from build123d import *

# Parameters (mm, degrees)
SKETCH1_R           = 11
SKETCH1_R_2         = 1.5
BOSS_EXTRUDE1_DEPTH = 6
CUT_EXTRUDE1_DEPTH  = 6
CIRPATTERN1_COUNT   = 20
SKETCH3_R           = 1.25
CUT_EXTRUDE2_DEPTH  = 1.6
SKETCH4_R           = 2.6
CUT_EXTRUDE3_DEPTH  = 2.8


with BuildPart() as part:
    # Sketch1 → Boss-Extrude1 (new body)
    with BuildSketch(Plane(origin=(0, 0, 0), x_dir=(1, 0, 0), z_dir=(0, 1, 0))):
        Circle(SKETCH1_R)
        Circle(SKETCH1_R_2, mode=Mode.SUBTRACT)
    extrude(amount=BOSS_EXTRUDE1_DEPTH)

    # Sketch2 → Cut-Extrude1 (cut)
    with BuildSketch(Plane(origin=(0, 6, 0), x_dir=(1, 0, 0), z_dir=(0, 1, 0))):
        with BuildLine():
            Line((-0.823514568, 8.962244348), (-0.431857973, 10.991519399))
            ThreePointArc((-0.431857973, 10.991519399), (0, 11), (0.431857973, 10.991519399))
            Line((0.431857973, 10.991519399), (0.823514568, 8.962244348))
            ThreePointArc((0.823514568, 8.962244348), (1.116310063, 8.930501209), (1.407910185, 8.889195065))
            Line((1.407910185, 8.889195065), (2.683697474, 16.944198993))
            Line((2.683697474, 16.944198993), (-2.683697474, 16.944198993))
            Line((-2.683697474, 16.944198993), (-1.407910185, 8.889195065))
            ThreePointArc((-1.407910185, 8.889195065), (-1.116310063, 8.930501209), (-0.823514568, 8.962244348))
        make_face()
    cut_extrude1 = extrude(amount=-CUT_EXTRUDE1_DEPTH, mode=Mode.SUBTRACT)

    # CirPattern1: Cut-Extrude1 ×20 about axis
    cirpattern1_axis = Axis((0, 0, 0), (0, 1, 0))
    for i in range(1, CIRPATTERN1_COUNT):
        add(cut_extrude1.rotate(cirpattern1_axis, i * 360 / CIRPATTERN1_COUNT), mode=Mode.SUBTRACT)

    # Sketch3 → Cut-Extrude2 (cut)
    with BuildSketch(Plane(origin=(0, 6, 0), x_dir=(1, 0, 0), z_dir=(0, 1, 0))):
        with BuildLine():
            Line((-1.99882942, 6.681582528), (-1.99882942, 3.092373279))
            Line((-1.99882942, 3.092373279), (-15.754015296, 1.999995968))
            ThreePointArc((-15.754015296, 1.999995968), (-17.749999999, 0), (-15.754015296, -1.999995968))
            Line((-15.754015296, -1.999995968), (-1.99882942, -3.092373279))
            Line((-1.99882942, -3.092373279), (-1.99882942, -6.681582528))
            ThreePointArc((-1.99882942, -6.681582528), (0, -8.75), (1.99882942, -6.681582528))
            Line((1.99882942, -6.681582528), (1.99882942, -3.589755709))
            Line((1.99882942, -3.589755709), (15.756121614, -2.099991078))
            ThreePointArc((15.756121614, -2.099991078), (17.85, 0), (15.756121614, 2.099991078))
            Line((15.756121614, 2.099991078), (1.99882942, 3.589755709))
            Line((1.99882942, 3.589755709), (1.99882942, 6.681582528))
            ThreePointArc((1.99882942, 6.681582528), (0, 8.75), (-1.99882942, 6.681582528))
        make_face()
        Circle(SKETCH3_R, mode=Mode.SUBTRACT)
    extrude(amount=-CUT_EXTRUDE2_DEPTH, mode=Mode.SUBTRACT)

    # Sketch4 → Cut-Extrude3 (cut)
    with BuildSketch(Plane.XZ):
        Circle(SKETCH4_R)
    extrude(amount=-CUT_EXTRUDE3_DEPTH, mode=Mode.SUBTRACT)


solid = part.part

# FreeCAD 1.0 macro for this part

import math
import FreeCAD as App
import Part
import Sketcher

V = App.Vector
Q = App.Units.Quantity

doc = App.newDocument("Part")
body = doc.addObject("PartDesign::Body", "Body")

sketch1 = doc.addObject("Sketcher::SketchObject", "Sketch")
body.addObject(sketch1)
sketch1.AttachmentSupport = (doc.XZ_Plane, [""])
sketch1.MapMode = "FlatFace"
sketch1.addGeometry([
    Part.Circle(V(0, 0, 0), V(0, 0, 1), 11),
    Part.Circle(V(0, 0, 0), V(0, 0, 1), 1.5),
], False)
sketch1.addConstraint([
    Sketcher.Constraint("Coincident", 0, 3, -1, 1),
    Sketcher.Constraint("Coincident", 1, 3, -1, 1),
    Sketcher.Constraint("Diameter", 0, Q("22 mm")),
    Sketcher.Constraint("Diameter", 1, Q("3 mm")),
])
pad1 = doc.addObject("PartDesign::Pad", "Pad")
body.addObject(pad1)
pad1.Profile = sketch1
pad1.Length = 6
pad1.Reversed = True

sketch2 = doc.addObject("Sketcher::SketchObject", "Sketch001")
body.addObject(sketch2)
sketch2.AttachmentSupport = (doc.XZ_Plane, [""])
sketch2.MapMode = "FlatFace"
sketch2.AttachmentOffset = App.Placement(V(0, 0, -6), App.Rotation())
sketch2.addGeometry([
    Part.LineSegment(V(-0.8, -9, 0), V(-0.4, -11, 0)),
    Part.ArcOfCircle(Part.Circle(V(0, 0, 0), V(0, 0, 1), 11), math.radians(-92.25), math.radians(-87.75)),
    Part.LineSegment(V(0.4, -11, 0), V(0.8, -9, 0)),
    Part.ArcOfCircle(Part.Circle(V(0, 0, 0), V(0, 0, 1), 9), math.radians(-84.75), math.radians(-81)),
    Part.LineSegment(V(1.4, -8.9, 0), V(2.7, -16.9, 0)),
    Part.LineSegment(V(2.7, -16.9, 0), V(-2.7, -16.9, 0)),
    Part.LineSegment(V(-2.7, -16.9, 0), V(-1.4, -8.9, 0)),
    Part.ArcOfCircle(Part.Circle(V(0, 0, 0), V(0, 0, 1), 9), math.radians(-99), math.radians(-95.25)),
], False)
sketch2.addConstraint([
    Sketcher.Constraint("Coincident", 0, 2, 1, 1),
    Sketcher.Constraint("Coincident", 1, 2, 2, 1),
    Sketcher.Constraint("Coincident", 2, 2, 3, 1),
    Sketcher.Constraint("Coincident", 3, 2, 4, 1),
    Sketcher.Constraint("Coincident", 4, 2, 5, 1),
    Sketcher.Constraint("Coincident", 5, 2, 6, 1),
    Sketcher.Constraint("Coincident", 6, 2, 7, 1),
    Sketcher.Constraint("Coincident", 7, 2, 0, 1),
    Sketcher.Constraint("Horizontal", 5),
    Sketcher.Constraint("Coincident", 1, 3, -1, 1),
    Sketcher.Constraint("Coincident", 3, 3, -1, 1),
    Sketcher.Constraint("Coincident", 7, 3, -1, 1),
    Sketcher.Constraint("Equal", 3, 7),
    Sketcher.Constraint("Horizontal", 0, 2, 1, 2),
    Sketcher.Constraint("Horizontal", 3, 2, 6, 2),
    Sketcher.Constraint("Horizontal", 2, 2, 7, 2),
    Sketcher.Constraint("Equal", 4, 6),
    Sketcher.Constraint("Radius", 1, Q("11 mm")),
    Sketcher.Constraint("Radius", 3, Q("8.999999 mm")),
    Sketcher.Constraint("Angle", 4, Q("-81 deg")),
    Sketcher.Constraint("DistanceY", 4, 2, -1, 1, Q("16.944199 mm")),
    Sketcher.Constraint("Distance", 4, Q("8.155411 mm")),
    Sketcher.Constraint("DistanceY", 0, 2, -1, 1, Q("10.991519 mm")),
    Sketcher.Constraint("DistanceY", 2, 2, 3, 2, Q("0.073049 mm")),
])
pocket1 = doc.addObject("PartDesign::Pocket", "Pocket")
body.addObject(pocket1)
pocket1.Profile = sketch2
pocket1.Length = 6
pocket1.Reversed = True
doc.recompute()

polarpattern = doc.addObject("PartDesign::PolarPattern", "PolarPattern")
body.addObject(polarpattern)
polarpattern.Originals = [pocket1]
polarpattern.Axis = (doc.Y_Axis, [""])
polarpattern.Angle = 360
polarpattern.Occurrences = 20
body.Tip = polarpattern

sketch3 = doc.addObject("Sketcher::SketchObject", "Sketch002")
body.addObject(sketch3)
sketch3.AttachmentSupport = (doc.XZ_Plane, [""])
sketch3.MapMode = "FlatFace"
sketch3.AttachmentOffset = App.Placement(V(0, 0, -6), App.Rotation())
sketch3.addGeometry([
    Part.LineSegment(V(-2, -6.7, 0), V(-2, -3.1, 0)),
    Part.LineSegment(V(-2, -3.1, 0), V(-15.8, -2, 0)),
    Part.ArcOfCircle(Part.Circle(V(-15.8, 0, 0), V(0, 0, 1), 2), math.radians(90), math.radians(270)),
    Part.LineSegment(V(-15.8, 2, 0), V(-2, 3.1, 0)),
    Part.LineSegment(V(-2, 3.1, 0), V(-2, 6.7, 0)),
    Part.ArcOfCircle(Part.Circle(V(0, 6.8, 0), V(0, 0, 1), 2), math.radians(-2), math.radians(182)),
    Part.LineSegment(V(2, 6.7, 0), V(2, 3.6, 0)),
    Part.LineSegment(V(2, 3.6, 0), V(15.8, 2.1, 0)),
    Part.ArcOfCircle(Part.Circle(V(15.8, 0, 0), V(0, 0, 1), 2.1), math.radians(-90), math.radians(90)),
    Part.LineSegment(V(15.8, -2.1, 0), V(2, -3.6, 0)),
    Part.LineSegment(V(2, -3.6, 0), V(2, -6.7, 0)),
    Part.ArcOfCircle(Part.Circle(V(0, -6.8, 0), V(0, 0, 1), 2), math.radians(178), math.radians(362)),
    Part.Circle(V(0, 0, 0), V(0, 0, 1), 1.2),
], False)
sketch3.addConstraint([
    Sketcher.Constraint("Coincident", 0, 2, 1, 1),
    Sketcher.Constraint("Coincident", 1, 2, 2, 2),
    Sketcher.Constraint("Coincident", 2, 1, 3, 1),
    Sketcher.Constraint("Coincident", 3, 2, 4, 1),
    Sketcher.Constraint("Coincident", 4, 2, 5, 2),
    Sketcher.Constraint("Coincident", 5, 1, 6, 1),
    Sketcher.Constraint("Coincident", 6, 2, 7, 1),
    Sketcher.Constraint("Coincident", 7, 2, 8, 2),
    Sketcher.Constraint("Coincident", 8, 1, 9, 1),
    Sketcher.Constraint("Coincident", 9, 2, 10, 1),
    Sketcher.Constraint("Coincident", 10, 2, 11, 2),
    Sketcher.Constraint("Coincident", 11, 1, 0, 1),
    Sketcher.Constraint("Vertical", 0),
    Sketcher.Constraint("Vertical", 4),
    Sketcher.Constraint("Vertical", 6),
    Sketcher.Constraint("Vertical", 10),
    Sketcher.Constraint("Coincident", 12, 3, -1, 1),
    Sketcher.Constraint("Equal", 2, 5),
    Sketcher.Constraint("Equal", 5, 11),
    Sketcher.Constraint("Symmetric", 2, 3, 8, 3, -1, 1),
    Sketcher.Constraint("Symmetric", 5, 3, 11, 3, -1, 1),
    Sketcher.Constraint("Symmetric", 4, 2, 5, 1, -2),
    Sketcher.Constraint("Symmetric", 1, 2, 2, 1, -1),
    Sketcher.Constraint("Symmetric", 0, 2, 3, 2, -1),
    Sketcher.Constraint("Symmetric", 6, 2, 9, 2, -1),
    Sketcher.Constraint("Vertical", 7, 2, 8, 1),
    Sketcher.Constraint("Radius", 2, Q("2 mm")),
    Sketcher.Constraint("Diameter", 12, Q("2.5 mm")),
    Sketcher.Constraint("Radius", 8, Q("2.1 mm")),
    Sketcher.Constraint("DistanceX", 2, 3, 8, 3, Q("31.5 mm")),
    Sketcher.Constraint("DistanceY", 11, 3, 5, 3, Q("13.5 mm")),
    Sketcher.Constraint("DistanceY", 0, 1, 0, 2, Q("3.589209 mm")),
    Sketcher.Constraint("Distance", 7, Q("13.83772 mm")),
    Sketcher.Constraint("DistanceY", 6, 2, 6, 1, Q("3.091827 mm")),
    Sketcher.Constraint("DistanceX", 0, 2, -1, 1, Q("1.998829 mm")),
    Sketcher.Constraint("Distance", 1, Q("13.798494 mm")),
])
pocket2 = doc.addObject("PartDesign::Pocket", "Pocket001")
body.addObject(pocket2)
pocket2.Profile = sketch3
pocket2.Length = 1.6
pocket2.Reversed = True

sketch4 = doc.addObject("Sketcher::SketchObject", "Sketch003")
body.addObject(sketch4)
sketch4.AttachmentSupport = (doc.XZ_Plane, [""])
sketch4.MapMode = "FlatFace"
sketch4.addGeometry(Part.Circle(V(0, 0, 0), V(0, 0, 1), 2.6), False)
sketch4.addConstraint([
    Sketcher.Constraint("Coincident", 0, 3, -1, 1),
    Sketcher.Constraint("Diameter", 0, Q("5.2 mm")),
])
pocket3 = doc.addObject("PartDesign::Pocket", "Pocket002")
body.addObject(pocket3)
pocket3.Profile = sketch4
pocket3.Length = 2.8

doc.recompute()
